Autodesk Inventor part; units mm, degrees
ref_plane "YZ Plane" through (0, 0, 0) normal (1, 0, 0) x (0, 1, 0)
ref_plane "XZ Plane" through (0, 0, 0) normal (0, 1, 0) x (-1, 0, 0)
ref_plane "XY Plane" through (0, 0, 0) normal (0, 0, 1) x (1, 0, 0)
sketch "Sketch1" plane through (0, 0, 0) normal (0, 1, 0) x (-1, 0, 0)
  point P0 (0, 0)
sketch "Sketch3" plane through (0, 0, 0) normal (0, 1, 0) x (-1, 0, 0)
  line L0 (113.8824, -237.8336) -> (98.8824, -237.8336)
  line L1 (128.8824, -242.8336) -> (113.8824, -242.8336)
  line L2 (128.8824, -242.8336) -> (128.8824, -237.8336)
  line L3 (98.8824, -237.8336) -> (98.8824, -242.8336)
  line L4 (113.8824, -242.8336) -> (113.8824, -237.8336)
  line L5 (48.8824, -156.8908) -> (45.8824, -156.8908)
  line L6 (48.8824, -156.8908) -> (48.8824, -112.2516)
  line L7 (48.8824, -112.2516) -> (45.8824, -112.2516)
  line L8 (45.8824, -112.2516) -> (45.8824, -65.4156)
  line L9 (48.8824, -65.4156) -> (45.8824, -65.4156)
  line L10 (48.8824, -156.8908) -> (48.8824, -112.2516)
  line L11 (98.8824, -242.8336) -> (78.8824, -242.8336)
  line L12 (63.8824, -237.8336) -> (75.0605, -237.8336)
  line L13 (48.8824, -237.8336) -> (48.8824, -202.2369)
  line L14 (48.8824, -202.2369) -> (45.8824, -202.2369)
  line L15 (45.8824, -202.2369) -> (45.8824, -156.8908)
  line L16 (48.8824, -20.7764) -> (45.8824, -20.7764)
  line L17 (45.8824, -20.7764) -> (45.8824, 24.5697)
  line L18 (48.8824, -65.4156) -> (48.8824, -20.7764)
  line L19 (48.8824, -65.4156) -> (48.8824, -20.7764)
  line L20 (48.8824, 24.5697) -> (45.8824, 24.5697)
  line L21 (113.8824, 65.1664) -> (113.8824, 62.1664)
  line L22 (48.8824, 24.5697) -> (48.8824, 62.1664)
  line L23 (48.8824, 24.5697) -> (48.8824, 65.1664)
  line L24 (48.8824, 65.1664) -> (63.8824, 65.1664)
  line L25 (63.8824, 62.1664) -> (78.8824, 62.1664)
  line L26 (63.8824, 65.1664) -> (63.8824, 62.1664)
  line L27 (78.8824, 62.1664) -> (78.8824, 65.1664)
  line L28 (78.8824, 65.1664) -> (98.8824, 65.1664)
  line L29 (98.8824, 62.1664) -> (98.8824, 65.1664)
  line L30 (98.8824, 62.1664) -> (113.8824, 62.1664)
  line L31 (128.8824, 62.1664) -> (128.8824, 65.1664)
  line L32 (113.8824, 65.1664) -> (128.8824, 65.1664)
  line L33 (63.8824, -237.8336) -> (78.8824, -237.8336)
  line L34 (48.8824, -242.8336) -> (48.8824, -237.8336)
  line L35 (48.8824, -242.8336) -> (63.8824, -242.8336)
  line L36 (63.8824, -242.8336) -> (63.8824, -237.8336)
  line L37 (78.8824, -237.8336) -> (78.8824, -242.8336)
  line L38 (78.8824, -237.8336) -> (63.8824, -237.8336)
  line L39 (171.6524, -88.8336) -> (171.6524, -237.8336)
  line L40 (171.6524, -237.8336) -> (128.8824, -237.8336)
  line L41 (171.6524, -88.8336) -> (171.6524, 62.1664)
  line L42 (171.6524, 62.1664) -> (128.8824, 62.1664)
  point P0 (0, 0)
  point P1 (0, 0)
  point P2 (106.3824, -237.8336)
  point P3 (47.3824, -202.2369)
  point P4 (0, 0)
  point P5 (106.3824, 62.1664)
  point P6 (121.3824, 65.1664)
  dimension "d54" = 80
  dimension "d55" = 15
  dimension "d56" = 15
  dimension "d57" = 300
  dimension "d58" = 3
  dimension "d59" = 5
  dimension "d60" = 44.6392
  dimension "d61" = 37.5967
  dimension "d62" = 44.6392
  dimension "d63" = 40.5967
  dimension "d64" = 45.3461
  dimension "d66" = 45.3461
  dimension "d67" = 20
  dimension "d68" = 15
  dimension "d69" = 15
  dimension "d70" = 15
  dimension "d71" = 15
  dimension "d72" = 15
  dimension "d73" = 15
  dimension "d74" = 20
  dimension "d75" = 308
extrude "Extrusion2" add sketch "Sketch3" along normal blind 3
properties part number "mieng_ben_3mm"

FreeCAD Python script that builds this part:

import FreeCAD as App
import Part
import Sketcher

V = App.Vector

doc = App.newDocument("Part")
body = doc.addObject("PartDesign::Body", "Body")

sketch1 = body.newObject("Sketcher::SketchObject", "Sketch")
sketch1.AttachmentSupport = (doc.getObject("XZ_Plane"), [""])
sketch1.MapMode = "FlatFace"
sketch1.addGeometry([
    Part.LineSegment(V(-98.8824, -237.8336, 0), V(-113.8824, -237.8336, 0)),
    Part.LineSegment(V(-113.8824, -237.8336, 0), V(-113.8824, -242.8336, 0)),
    Part.LineSegment(V(-113.8824, -242.8336, 0), V(-128.8824, -242.8336, 0)),
    Part.LineSegment(V(-128.8824, -242.8336, 0), V(-128.8824, -237.8336, 0)),
    Part.LineSegment(V(-128.8824, -237.8336, 0), V(-171.6524, -237.8336, 0)),
    Part.LineSegment(V(-171.6524, -237.8336, 0), V(-171.6524, 62.1664, 0)),
    Part.LineSegment(V(-171.6524, 62.1664, 0), V(-128.8824, 62.1664, 0)),
    Part.LineSegment(V(-128.8824, 62.1664, 0), V(-128.8824, 65.1664, 0)),
    Part.LineSegment(V(-128.8824, 65.1664, 0), V(-113.8824, 65.1664, 0)),
    Part.LineSegment(V(-113.8824, 65.1664, 0), V(-113.8824, 62.1664, 0)),
    Part.LineSegment(V(-113.8824, 62.1664, 0), V(-98.8824, 62.1664, 0)),
    Part.LineSegment(V(-98.8824, 62.1664, 0), V(-98.8824, 65.1664, 0)),
    Part.LineSegment(V(-98.8824, 65.1664, 0), V(-78.8824, 65.1664, 0)),
    Part.LineSegment(V(-78.8824, 65.1664, 0), V(-78.8824, 62.1664, 0)),
    Part.LineSegment(V(-78.8824, 62.1664, 0), V(-63.8824, 62.1664, 0)),
    Part.LineSegment(V(-63.8824, 62.1664, 0), V(-63.8824, 65.1664, 0)),
    Part.LineSegment(V(-63.8824, 65.1664, 0), V(-48.8824, 65.1664, 0)),
    Part.LineSegment(V(-48.8824, 65.1664, 0), V(-48.8824, 24.5697, 0)),
    Part.LineSegment(V(-48.8824, 24.5697, 0), V(-45.8824, 24.5697, 0)),
    Part.LineSegment(V(-45.8824, 24.5697, 0), V(-45.8824, -20.7764, 0)),
    Part.LineSegment(V(-45.8824, -20.7764, 0), V(-48.8824, -20.7764, 0)),
    Part.LineSegment(V(-48.8824, -20.7764, 0), V(-48.8824, -65.4156, 0)),
    Part.LineSegment(V(-48.8824, -65.4156, 0), V(-45.8824, -65.4156, 0)),
    Part.LineSegment(V(-45.8824, -65.4156, 0), V(-45.8824, -112.2516, 0)),
    Part.LineSegment(V(-45.8824, -112.2516, 0), V(-48.8824, -112.2516, 0)),
    Part.LineSegment(V(-48.8824, -112.2516, 0), V(-48.8824, -156.8908, 0)),
    Part.LineSegment(V(-48.8824, -156.8908, 0), V(-45.8824, -156.8908, 0)),
    Part.LineSegment(V(-45.8824, -156.8908, 0), V(-45.8824, -202.2369, 0)),
    Part.LineSegment(V(-45.8824, -202.2369, 0), V(-48.8824, -202.2369, 0)),
    Part.LineSegment(V(-48.8824, -202.2369, 0), V(-48.8824, -242.8336, 0)),
    Part.LineSegment(V(-48.8824, -242.8336, 0), V(-63.8824, -242.8336, 0)),
    Part.LineSegment(V(-63.8824, -242.8336, 0), V(-63.8824, -237.8336, 0)),
    Part.LineSegment(V(-63.8824, -237.8336, 0), V(-78.8824, -237.8336, 0)),
    Part.LineSegment(V(-78.8824, -237.8336, 0), V(-78.8824, -242.8336, 0)),
    Part.LineSegment(V(-78.8824, -242.8336, 0), V(-98.8824, -242.8336, 0)),
    Part.LineSegment(V(-98.8824, -242.8336, 0), V(-98.8824, -237.8336, 0)),
], False)
sketch1.addConstraint([
    Sketcher.Constraint("Coincident", 0, 2, 1, 1),
    Sketcher.Constraint("Coincident", 1, 2, 2, 1),
    Sketcher.Constraint("Coincident", 2, 2, 3, 1),
    Sketcher.Constraint("Coincident", 3, 2, 4, 1),
    Sketcher.Constraint("Coincident", 4, 2, 5, 1),
    Sketcher.Constraint("Coincident", 5, 2, 6, 1),
    Sketcher.Constraint("Coincident", 6, 2, 7, 1),
    Sketcher.Constraint("Coincident", 7, 2, 8, 1),
    Sketcher.Constraint("Coincident", 8, 2, 9, 1),
    Sketcher.Constraint("Coincident", 9, 2, 10, 1),
    Sketcher.Constraint("Coincident", 10, 2, 11, 1),
    Sketcher.Constraint("Coincident", 11, 2, 12, 1),
    Sketcher.Constraint("Coincident", 12, 2, 13, 1),
    Sketcher.Constraint("Coincident", 13, 2, 14, 1),
    Sketcher.Constraint("Coincident", 14, 2, 15, 1),
    Sketcher.Constraint("Coincident", 15, 2, 16, 1),
    Sketcher.Constraint("Coincident", 16, 2, 17, 1),
    Sketcher.Constraint("Coincident", 17, 2, 18, 1),
    Sketcher.Constraint("Coincident", 18, 2, 19, 1),
    Sketcher.Constraint("Coincident", 19, 2, 20, 1),
    Sketcher.Constraint("Coincident", 20, 2, 21, 1),
    Sketcher.Constraint("Coincident", 21, 2, 22, 1),
    Sketcher.Constraint("Coincident", 22, 2, 23, 1),
    Sketcher.Constraint("Coincident", 23, 2, 24, 1),
    Sketcher.Constraint("Coincident", 24, 2, 25, 1),
    Sketcher.Constraint("Coincident", 25, 2, 26, 1),
    Sketcher.Constraint("Coincident", 26, 2, 27, 1),
    Sketcher.Constraint("Coincident", 27, 2, 28, 1),
    Sketcher.Constraint("Coincident", 28, 2, 29, 1),
    Sketcher.Constraint("Coincident", 29, 2, 30, 1),
    Sketcher.Constraint("Coincident", 30, 2, 31, 1),
    Sketcher.Constraint("Coincident", 31, 2, 32, 1),
    Sketcher.Constraint("Coincident", 32, 2, 33, 1),
    Sketcher.Constraint("Coincident", 33, 2, 34, 1),
    Sketcher.Constraint("Coincident", 34, 2, 35, 1),
    Sketcher.Constraint("Coincident", 35, 2, 0, 1),
    Sketcher.Constraint("Horizontal", 0),
    Sketcher.Constraint("Vertical", 1),
    Sketcher.Constraint("Horizontal", 2),
    Sketcher.Constraint("Vertical", 3),
    Sketcher.Constraint("Horizontal", 4),
    Sketcher.Constraint("Vertical", 5),
    Sketcher.Constraint("Horizontal", 6),
    Sketcher.Constraint("Vertical", 7),
    Sketcher.Constraint("Horizontal", 8),
    Sketcher.Constraint("Vertical", 9),
    Sketcher.Constraint("Horizontal", 10),
    Sketcher.Constraint("Vertical", 11),
    Sketcher.Constraint("Horizontal", 12),
    Sketcher.Constraint("Vertical", 13),
    Sketcher.Constraint("Horizontal", 14),
    Sketcher.Constraint("Vertical", 15),
    Sketcher.Constraint("Horizontal", 16),
    Sketcher.Constraint("Vertical", 17),
    Sketcher.Constraint("Horizontal", 18),
    Sketcher.Constraint("Vertical", 19),
    Sketcher.Constraint("Horizontal", 20),
    Sketcher.Constraint("Vertical", 21),
    Sketcher.Constraint("Horizontal", 22),
    Sketcher.Constraint("Vertical", 23),
    Sketcher.Constraint("Horizontal", 24),
    Sketcher.Constraint("Vertical", 25),
    Sketcher.Constraint("Horizontal", 26),
    Sketcher.Constraint("Vertical", 27),
    Sketcher.Constraint("Horizontal", 28),
    Sketcher.Constraint("Vertical", 29),
    Sketcher.Constraint("Horizontal", 30),
    Sketcher.Constraint("Vertical", 31),
    Sketcher.Constraint("Horizontal", 32),
    Sketcher.Constraint("Vertical", 33),
    Sketcher.Constraint("Horizontal", 34),
    Sketcher.Constraint("Vertical", 35),
    Sketcher.Constraint("Horizontal", 0, 2, 3, 2),
    Sketcher.Constraint("Horizontal", 6, 2, 9, 2),
    Sketcher.Constraint("Horizontal", 8, 2, 11, 2),
    Sketcher.Constraint("Horizontal", 10, 2, 13, 2),
    Sketcher.Constraint("Horizontal", 12, 2, 15, 2),
    Sketcher.Constraint("Horizontal", 2, 2, 29, 2),
    Sketcher.Constraint("Horizontal", 4, 2, 31, 2),
    Sketcher.Constraint("Horizontal", 30, 2, 33, 2),
    Sketcher.Constraint("Vertical", 3, 2, 6, 2),
    Sketcher.Constraint("Vertical", 1, 2, 8, 2),
    Sketcher.Constraint("Vertical", 17, 2, 20, 2),
    Sketcher.Constraint("Vertical", 19, 2, 22, 2),
    Sketcher.Constraint("Vertical", 21, 2, 24, 2),
    Sketcher.Constraint("Vertical", 23, 2, 26, 2),
    Sketcher.Constraint("Vertical", 25, 2, 28, 2),
    Sketcher.Constraint("Vertical", 15, 2, 30, 2),
    Sketcher.Constraint("Vertical", 13, 2, 32, 2),
    Sketcher.Constraint("Vertical", 11, 2, 34, 2),
    Sketcher.Constraint("Equal", 0, 2),
    Sketcher.Constraint("Equal", 10, 14),
    Sketcher.Constraint("Equal", 14, 16),
    Sketcher.Constraint("Equal", 28, 7),
    Sketcher.Constraint("Equal", 21, 25),
    Sketcher.Constraint("Equal", 19, 27),
    Sketcher.Constraint("Equal", 17, 29),
    Sketcher.Constraint("DistanceX", 0, 2, 0, 1, 15.0),
    Sketcher.Constraint("DistanceX", 12, 1, 12, 2, 20.0),
    Sketcher.Constraint("DistanceX", 18, 1, 18, 2, 3.0),
    Sketcher.Constraint("DistanceY", 1, 2, 1, 1, 5.0),
    Sketcher.Constraint("DistanceY", 5, 1, 5, 2, 300.0),
    Sketcher.Constraint("DistanceY", 19, 2, 19, 1, 45.346),
    Sketcher.Constraint("DistanceY", 17, 2, 17, 1, 40.5967),
    Sketcher.Constraint("DistanceY", 21, 2, 21, 1, 44.6392),
    Sketcher.Constraint("DistanceX", 4, 2, 4, 1, 42.77),
    Sketcher.Constraint("DistanceY", 27, 2, -1, 1, 202.237),
    Sketcher.Constraint("DistanceX", 0, 2, -1, 1, 113.8824),
])
pad1 = body.newObject("PartDesign::Pad", "Pad")
pad1.Profile = sketch1
pad1.Length = 3
pad1.Reversed = True

doc.recompute()
